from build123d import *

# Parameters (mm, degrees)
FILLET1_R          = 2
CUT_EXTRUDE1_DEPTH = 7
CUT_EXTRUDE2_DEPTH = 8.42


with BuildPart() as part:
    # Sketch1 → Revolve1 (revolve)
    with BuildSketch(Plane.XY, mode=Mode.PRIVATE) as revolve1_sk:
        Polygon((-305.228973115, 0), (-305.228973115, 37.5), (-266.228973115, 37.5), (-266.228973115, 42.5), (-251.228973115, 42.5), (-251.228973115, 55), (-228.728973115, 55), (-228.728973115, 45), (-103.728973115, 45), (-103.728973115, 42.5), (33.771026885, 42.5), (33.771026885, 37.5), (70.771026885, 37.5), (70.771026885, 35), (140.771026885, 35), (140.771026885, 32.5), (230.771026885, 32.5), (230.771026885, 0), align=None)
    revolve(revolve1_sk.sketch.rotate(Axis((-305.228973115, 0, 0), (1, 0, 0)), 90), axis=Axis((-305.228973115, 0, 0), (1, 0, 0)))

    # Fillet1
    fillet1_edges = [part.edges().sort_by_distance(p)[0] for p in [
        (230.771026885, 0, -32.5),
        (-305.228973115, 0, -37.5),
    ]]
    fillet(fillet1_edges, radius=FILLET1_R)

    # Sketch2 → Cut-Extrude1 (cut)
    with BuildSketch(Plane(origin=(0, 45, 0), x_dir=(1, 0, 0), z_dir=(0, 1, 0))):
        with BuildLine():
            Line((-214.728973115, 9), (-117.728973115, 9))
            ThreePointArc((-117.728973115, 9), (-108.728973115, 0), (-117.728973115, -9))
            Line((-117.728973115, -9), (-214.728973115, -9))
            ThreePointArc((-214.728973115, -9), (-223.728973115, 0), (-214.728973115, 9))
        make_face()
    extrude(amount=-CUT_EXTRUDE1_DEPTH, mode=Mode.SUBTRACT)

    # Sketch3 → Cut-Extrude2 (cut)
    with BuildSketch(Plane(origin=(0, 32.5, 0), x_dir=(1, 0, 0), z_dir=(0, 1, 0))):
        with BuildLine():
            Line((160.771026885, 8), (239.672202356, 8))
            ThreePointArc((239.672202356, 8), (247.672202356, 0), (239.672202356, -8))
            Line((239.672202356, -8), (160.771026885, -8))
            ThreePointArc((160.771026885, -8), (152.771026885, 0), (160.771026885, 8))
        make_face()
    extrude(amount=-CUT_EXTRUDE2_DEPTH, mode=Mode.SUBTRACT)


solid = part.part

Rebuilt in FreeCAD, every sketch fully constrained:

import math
import FreeCAD as App
import Part
import Sketcher
from FreeCAD import Vector


def edges_at(feature, points):
    """Names of the edges that pass closest to the given points."""
    edges = feature.Shape.Edges
    near = lambda p: min(range(len(edges)), key=lambda i: edges[i].distToShape(Part.Vertex(*p))[0])
    return sorted({f"Edge{near(p) + 1}" for p in points})

doc = App.newDocument("Part")
body = doc.addObject("PartDesign::Body", "Body")

sketch1 = doc.addObject("Sketcher::SketchObject", "Sketch")
body.addObject(sketch1)
sketch1.AttachmentSupport = (doc.XY_Plane, [""])
sketch1.MapMode = "FlatFace"
sketch1.addGeometry(Part.LineSegment(Vector(-305.2, 37.5, 0), Vector(-305.2, 0, 0)), False)
sketch1.addGeometry(Part.LineSegment(Vector(-305.2, 0, 0), Vector(230.8, 0, 0)), False)
sketch1.addGeometry(Part.LineSegment(Vector(230.8, 0, 0), Vector(230.8, 32.5, 0)), False)
sketch1.addGeometry(Part.LineSegment(Vector(230.8, 32.5, 0), Vector(140.8, 32.5, 0)), False)
sketch1.addGeometry(Part.LineSegment(Vector(140.8, 32.5, 0), Vector(140.8, 35, 0)), False)
sketch1.addGeometry(Part.LineSegment(Vector(140.8, 35, 0), Vector(70.8, 35, 0)), False)
sketch1.addGeometry(Part.LineSegment(Vector(70.8, 35, 0), Vector(70.8, 37.5, 0)), False)
sketch1.addGeometry(Part.LineSegment(Vector(70.8, 37.5, 0), Vector(33.8, 37.5, 0)), False)
sketch1.addGeometry(Part.LineSegment(Vector(33.8, 37.5, 0), Vector(33.8, 42.5, 0)), False)
sketch1.addGeometry(Part.LineSegment(Vector(33.8, 42.5, 0), Vector(-103.7, 42.5, 0)), False)
sketch1.addGeometry(Part.LineSegment(Vector(-103.7, 42.5, 0), Vector(-103.7, 45, 0)), False)
sketch1.addGeometry(Part.LineSegment(Vector(-103.7, 45, 0), Vector(-228.7, 45, 0)), False)
sketch1.addGeometry(Part.LineSegment(Vector(-228.7, 45, 0), Vector(-228.7, 55, 0)), False)
sketch1.addGeometry(Part.LineSegment(Vector(-228.7, 55, 0), Vector(-251.2, 55, 0)), False)
sketch1.addGeometry(Part.LineSegment(Vector(-251.2, 55, 0), Vector(-251.2, 42.5, 0)), False)
sketch1.addGeometry(Part.LineSegment(Vector(-251.2, 42.5, 0), Vector(-266.2, 42.5, 0)), False)
sketch1.addGeometry(Part.LineSegment(Vector(-266.2, 42.5, 0), Vector(-266.2, 37.5, 0)), False)
sketch1.addGeometry(Part.LineSegment(Vector(-266.2, 37.5, 0), Vector(-305.2, 37.5, 0)), False)
sketch1.addConstraint(Sketcher.Constraint("Coincident", 0, 2, 1, 1))
sketch1.addConstraint(Sketcher.Constraint("Coincident", 1, 2, 2, 1))
sketch1.addConstraint(Sketcher.Constraint("Coincident", 2, 2, 3, 1))
sketch1.addConstraint(Sketcher.Constraint("Coincident", 3, 2, 4, 1))
sketch1.addConstraint(Sketcher.Constraint("Coincident", 4, 2, 5, 1))
sketch1.addConstraint(Sketcher.Constraint("Coincident", 5, 2, 6, 1))
sketch1.addConstraint(Sketcher.Constraint("Coincident", 6, 2, 7, 1))
sketch1.addConstraint(Sketcher.Constraint("Coincident", 7, 2, 8, 1))
sketch1.addConstraint(Sketcher.Constraint("Coincident", 8, 2, 9, 1))
sketch1.addConstraint(Sketcher.Constraint("Coincident", 9, 2, 10, 1))
sketch1.addConstraint(Sketcher.Constraint("Coincident", 10, 2, 11, 1))
sketch1.addConstraint(Sketcher.Constraint("Coincident", 11, 2, 12, 1))
sketch1.addConstraint(Sketcher.Constraint("Coincident", 12, 2, 13, 1))
sketch1.addConstraint(Sketcher.Constraint("Coincident", 13, 2, 14, 1))
sketch1.addConstraint(Sketcher.Constraint("Coincident", 14, 2, 15, 1))
sketch1.addConstraint(Sketcher.Constraint("Coincident", 15, 2, 16, 1))
sketch1.addConstraint(Sketcher.Constraint("Coincident", 16, 2, 17, 1))
sketch1.addConstraint(Sketcher.Constraint("Coincident", 17, 2, 0, 1))
sketch1.addConstraint(Sketcher.Constraint("Vertical", 0))
sketch1.addConstraint(Sketcher.Constraint("Horizontal", 1))
sketch1.addConstraint(Sketcher.Constraint("Vertical", 2))
sketch1.addConstraint(Sketcher.Constraint("Horizontal", 3))
sketch1.addConstraint(Sketcher.Constraint("Vertical", 4))
sketch1.addConstraint(Sketcher.Constraint("Horizontal", 5))
sketch1.addConstraint(Sketcher.Constraint("Vertical", 6))
sketch1.addConstraint(Sketcher.Constraint("Horizontal", 7))
sketch1.addConstraint(Sketcher.Constraint("Vertical", 8))
sketch1.addConstraint(Sketcher.Constraint("Horizontal", 9))
sketch1.addConstraint(Sketcher.Constraint("Vertical", 10))
sketch1.addConstraint(Sketcher.Constraint("Horizontal", 11))
sketch1.addConstraint(Sketcher.Constraint("Vertical", 12))
sketch1.addConstraint(Sketcher.Constraint("Horizontal", 13))
sketch1.addConstraint(Sketcher.Constraint("Vertical", 14))
sketch1.addConstraint(Sketcher.Constraint("Horizontal", 15))
sketch1.addConstraint(Sketcher.Constraint("Vertical", 16))
sketch1.addConstraint(Sketcher.Constraint("Horizontal", 17))
sketch1.addConstraint(Sketcher.Constraint("PointOnObject", 0, 2, -1))
sketch1.addConstraint(Sketcher.Constraint("Horizontal", 9, 2, 14, 2))
sketch1.addConstraint(Sketcher.Constraint("Horizontal", 7, 2, 16, 2))
sketch1.addConstraint(Sketcher.Constraint("Equal", 4, 6))
sketch1.addConstraint(Sketcher.Constraint("Equal", 6, 10))
sketch1.addConstraint(Sketcher.Constraint("DistanceX", 1, 1, 1, 2, 536.0))
sketch1.addConstraint(Sketcher.Constraint("DistanceX", 3, 2, 3, 1, 90.0))
sketch1.addConstraint(Sketcher.Constraint("DistanceX", 5, 2, 5, 1, 70.0))
sketch1.addConstraint(Sketcher.Constraint("DistanceX", 7, 2, 7, 1, 37.0))
sketch1.addConstraint(Sketcher.Constraint("DistanceX", 11, 2, 11, 1, 125.0))
sketch1.addConstraint(Sketcher.Constraint("DistanceX", 15, 2, 15, 1, 15.0))
sketch1.addConstraint(Sketcher.Constraint("DistanceX", 17, 2, 17, 1, 39.0))
sketch1.addConstraint(Sketcher.Constraint("DistanceY", 8, 1, 8, 2, 5.0))
sketch1.addConstraint(Sketcher.Constraint("DistanceY", 12, 1, 12, 2, 10.0))
sketch1.addConstraint(Sketcher.Constraint("DistanceX", 9, 2, 9, 1, 137.5))
sketch1.addConstraint(Sketcher.Constraint("DistanceY", 0, 2, 0, 1, 37.5))
sketch1.addConstraint(Sketcher.Constraint("DistanceY", 2, 1, 2, 2, 32.5))
sketch1.addConstraint(Sketcher.Constraint("DistanceX", 0, 2, -1, 1, 305.228973))
revolution = doc.addObject("PartDesign::Revolution", "Revolution")
body.addObject(revolution)
revolution.Profile = sketch1
revolution.ReferenceAxis = (sketch1, ["H_Axis"])
revolution.Angle = 360
doc.recompute()

fillet = doc.addObject("PartDesign::Fillet", "Fillet")
body.addObject(fillet)
fillet.Base = (revolution, edges_at(revolution, [(230.771, 0, -32.5), (-305.229, 0, -37.5)]))
fillet.Radius = 2

sketch2 = doc.addObject("Sketcher::SketchObject", "Sketch001")
body.addObject(sketch2)
sketch2.AttachmentSupport = (doc.XZ_Plane, [""])
sketch2.MapMode = "FlatFace"
sketch2.AttachmentOffset = App.Placement(Vector(0, 0, -45), App.Rotation())
sketch2.addGeometry(Part.LineSegment(Vector(-118, -9, 0), Vector(-215, -9, 0)), False)
sketch2.addGeometry(Part.ArcOfCircle(Part.Circle(Vector(-215, 0, 0), Vector(0, 0, 1), 9), math.radians(90), math.radians(270)), False)
sketch2.addGeometry(Part.LineSegment(Vector(-215, 9, 0), Vector(-118, 9, 0)), False)
sketch2.addGeometry(Part.ArcOfCircle(Part.Circle(Vector(-118, 0, 0), Vector(0, 0, 1), 9), math.radians(-90), math.radians(90)), False)
sketch2.addConstraint(Sketcher.Constraint("Tangent", 0, 2, 1, 2))
sketch2.addConstraint(Sketcher.Constraint("Tangent", 1, 1, 2, 1))
sketch2.addConstraint(Sketcher.Constraint("Tangent", 2, 2, 3, 2))
sketch2.addConstraint(Sketcher.Constraint("Tangent", 3, 1, 0, 1))
sketch2.addConstraint(Sketcher.Constraint("Horizontal", 0))
sketch2.addConstraint(Sketcher.Constraint("Horizontal", 2))
sketch2.addConstraint(Sketcher.Constraint("PointOnObject", 1, 3, -1))
sketch2.addConstraint(Sketcher.Constraint("Radius", 1, 9.0))
sketch2.addConstraint(Sketcher.Constraint("DistanceX", 0, 2, 0, 1, 97.0))
sketch2.addConstraint(Sketcher.Constraint("DistanceX", 1, 3, -1, 1, 214.728973))
pocket1 = doc.addObject("PartDesign::Pocket", "Pocket")
body.addObject(pocket1)
pocket1.Profile = sketch2
pocket1.Length = 7
pocket1.Reversed = True

sketch3 = doc.addObject("Sketcher::SketchObject", "Sketch002")
body.addObject(sketch3)
sketch3.AttachmentSupport = (doc.XZ_Plane, [""])
sketch3.MapMode = "FlatFace"
sketch3.AttachmentOffset = App.Placement(Vector(0, 0, -32.5), App.Rotation())
sketch3.addGeometry(Part.LineSegment(Vector(240, -8, 0), Vector(161, -8, 0)), False)
sketch3.addGeometry(Part.ArcOfCircle(Part.Circle(Vector(161, 0, 0), Vector(0, 0, 1), 8), math.radians(90), math.radians(270)), False)
sketch3.addGeometry(Part.LineSegment(Vector(161, 8, 0), Vector(240, 8, 0)), False)
sketch3.addGeometry(Part.ArcOfCircle(Part.Circle(Vector(240, 0, 0), Vector(0, 0, 1), 8), math.radians(-90), math.radians(90)), False)
sketch3.addConstraint(Sketcher.Constraint("Tangent", 0, 2, 1, 2))
sketch3.addConstraint(Sketcher.Constraint("Tangent", 1, 1, 2, 1))
sketch3.addConstraint(Sketcher.Constraint("Tangent", 2, 2, 3, 2))
sketch3.addConstraint(Sketcher.Constraint("Tangent", 3, 1, 0, 1))
sketch3.addConstraint(Sketcher.Constraint("Horizontal", 0))
sketch3.addConstraint(Sketcher.Constraint("Horizontal", 2))
sketch3.addConstraint(Sketcher.Constraint("PointOnObject", 1, 3, -1))
sketch3.addConstraint(Sketcher.Constraint("Radius", 1, 8.0))
sketch3.addConstraint(Sketcher.Constraint("DistanceX", 0, 2, 0, 1, 78.901175))
sketch3.addConstraint(Sketcher.Constraint("DistanceX", -1, 1, 1, 3, 160.771027))
pocket2 = doc.addObject("PartDesign::Pocket", "Pocket001")
body.addObject(pocket2)
pocket2.Profile = sketch3
pocket2.Length = 8.42
pocket2.Reversed = True

doc.recompute()
